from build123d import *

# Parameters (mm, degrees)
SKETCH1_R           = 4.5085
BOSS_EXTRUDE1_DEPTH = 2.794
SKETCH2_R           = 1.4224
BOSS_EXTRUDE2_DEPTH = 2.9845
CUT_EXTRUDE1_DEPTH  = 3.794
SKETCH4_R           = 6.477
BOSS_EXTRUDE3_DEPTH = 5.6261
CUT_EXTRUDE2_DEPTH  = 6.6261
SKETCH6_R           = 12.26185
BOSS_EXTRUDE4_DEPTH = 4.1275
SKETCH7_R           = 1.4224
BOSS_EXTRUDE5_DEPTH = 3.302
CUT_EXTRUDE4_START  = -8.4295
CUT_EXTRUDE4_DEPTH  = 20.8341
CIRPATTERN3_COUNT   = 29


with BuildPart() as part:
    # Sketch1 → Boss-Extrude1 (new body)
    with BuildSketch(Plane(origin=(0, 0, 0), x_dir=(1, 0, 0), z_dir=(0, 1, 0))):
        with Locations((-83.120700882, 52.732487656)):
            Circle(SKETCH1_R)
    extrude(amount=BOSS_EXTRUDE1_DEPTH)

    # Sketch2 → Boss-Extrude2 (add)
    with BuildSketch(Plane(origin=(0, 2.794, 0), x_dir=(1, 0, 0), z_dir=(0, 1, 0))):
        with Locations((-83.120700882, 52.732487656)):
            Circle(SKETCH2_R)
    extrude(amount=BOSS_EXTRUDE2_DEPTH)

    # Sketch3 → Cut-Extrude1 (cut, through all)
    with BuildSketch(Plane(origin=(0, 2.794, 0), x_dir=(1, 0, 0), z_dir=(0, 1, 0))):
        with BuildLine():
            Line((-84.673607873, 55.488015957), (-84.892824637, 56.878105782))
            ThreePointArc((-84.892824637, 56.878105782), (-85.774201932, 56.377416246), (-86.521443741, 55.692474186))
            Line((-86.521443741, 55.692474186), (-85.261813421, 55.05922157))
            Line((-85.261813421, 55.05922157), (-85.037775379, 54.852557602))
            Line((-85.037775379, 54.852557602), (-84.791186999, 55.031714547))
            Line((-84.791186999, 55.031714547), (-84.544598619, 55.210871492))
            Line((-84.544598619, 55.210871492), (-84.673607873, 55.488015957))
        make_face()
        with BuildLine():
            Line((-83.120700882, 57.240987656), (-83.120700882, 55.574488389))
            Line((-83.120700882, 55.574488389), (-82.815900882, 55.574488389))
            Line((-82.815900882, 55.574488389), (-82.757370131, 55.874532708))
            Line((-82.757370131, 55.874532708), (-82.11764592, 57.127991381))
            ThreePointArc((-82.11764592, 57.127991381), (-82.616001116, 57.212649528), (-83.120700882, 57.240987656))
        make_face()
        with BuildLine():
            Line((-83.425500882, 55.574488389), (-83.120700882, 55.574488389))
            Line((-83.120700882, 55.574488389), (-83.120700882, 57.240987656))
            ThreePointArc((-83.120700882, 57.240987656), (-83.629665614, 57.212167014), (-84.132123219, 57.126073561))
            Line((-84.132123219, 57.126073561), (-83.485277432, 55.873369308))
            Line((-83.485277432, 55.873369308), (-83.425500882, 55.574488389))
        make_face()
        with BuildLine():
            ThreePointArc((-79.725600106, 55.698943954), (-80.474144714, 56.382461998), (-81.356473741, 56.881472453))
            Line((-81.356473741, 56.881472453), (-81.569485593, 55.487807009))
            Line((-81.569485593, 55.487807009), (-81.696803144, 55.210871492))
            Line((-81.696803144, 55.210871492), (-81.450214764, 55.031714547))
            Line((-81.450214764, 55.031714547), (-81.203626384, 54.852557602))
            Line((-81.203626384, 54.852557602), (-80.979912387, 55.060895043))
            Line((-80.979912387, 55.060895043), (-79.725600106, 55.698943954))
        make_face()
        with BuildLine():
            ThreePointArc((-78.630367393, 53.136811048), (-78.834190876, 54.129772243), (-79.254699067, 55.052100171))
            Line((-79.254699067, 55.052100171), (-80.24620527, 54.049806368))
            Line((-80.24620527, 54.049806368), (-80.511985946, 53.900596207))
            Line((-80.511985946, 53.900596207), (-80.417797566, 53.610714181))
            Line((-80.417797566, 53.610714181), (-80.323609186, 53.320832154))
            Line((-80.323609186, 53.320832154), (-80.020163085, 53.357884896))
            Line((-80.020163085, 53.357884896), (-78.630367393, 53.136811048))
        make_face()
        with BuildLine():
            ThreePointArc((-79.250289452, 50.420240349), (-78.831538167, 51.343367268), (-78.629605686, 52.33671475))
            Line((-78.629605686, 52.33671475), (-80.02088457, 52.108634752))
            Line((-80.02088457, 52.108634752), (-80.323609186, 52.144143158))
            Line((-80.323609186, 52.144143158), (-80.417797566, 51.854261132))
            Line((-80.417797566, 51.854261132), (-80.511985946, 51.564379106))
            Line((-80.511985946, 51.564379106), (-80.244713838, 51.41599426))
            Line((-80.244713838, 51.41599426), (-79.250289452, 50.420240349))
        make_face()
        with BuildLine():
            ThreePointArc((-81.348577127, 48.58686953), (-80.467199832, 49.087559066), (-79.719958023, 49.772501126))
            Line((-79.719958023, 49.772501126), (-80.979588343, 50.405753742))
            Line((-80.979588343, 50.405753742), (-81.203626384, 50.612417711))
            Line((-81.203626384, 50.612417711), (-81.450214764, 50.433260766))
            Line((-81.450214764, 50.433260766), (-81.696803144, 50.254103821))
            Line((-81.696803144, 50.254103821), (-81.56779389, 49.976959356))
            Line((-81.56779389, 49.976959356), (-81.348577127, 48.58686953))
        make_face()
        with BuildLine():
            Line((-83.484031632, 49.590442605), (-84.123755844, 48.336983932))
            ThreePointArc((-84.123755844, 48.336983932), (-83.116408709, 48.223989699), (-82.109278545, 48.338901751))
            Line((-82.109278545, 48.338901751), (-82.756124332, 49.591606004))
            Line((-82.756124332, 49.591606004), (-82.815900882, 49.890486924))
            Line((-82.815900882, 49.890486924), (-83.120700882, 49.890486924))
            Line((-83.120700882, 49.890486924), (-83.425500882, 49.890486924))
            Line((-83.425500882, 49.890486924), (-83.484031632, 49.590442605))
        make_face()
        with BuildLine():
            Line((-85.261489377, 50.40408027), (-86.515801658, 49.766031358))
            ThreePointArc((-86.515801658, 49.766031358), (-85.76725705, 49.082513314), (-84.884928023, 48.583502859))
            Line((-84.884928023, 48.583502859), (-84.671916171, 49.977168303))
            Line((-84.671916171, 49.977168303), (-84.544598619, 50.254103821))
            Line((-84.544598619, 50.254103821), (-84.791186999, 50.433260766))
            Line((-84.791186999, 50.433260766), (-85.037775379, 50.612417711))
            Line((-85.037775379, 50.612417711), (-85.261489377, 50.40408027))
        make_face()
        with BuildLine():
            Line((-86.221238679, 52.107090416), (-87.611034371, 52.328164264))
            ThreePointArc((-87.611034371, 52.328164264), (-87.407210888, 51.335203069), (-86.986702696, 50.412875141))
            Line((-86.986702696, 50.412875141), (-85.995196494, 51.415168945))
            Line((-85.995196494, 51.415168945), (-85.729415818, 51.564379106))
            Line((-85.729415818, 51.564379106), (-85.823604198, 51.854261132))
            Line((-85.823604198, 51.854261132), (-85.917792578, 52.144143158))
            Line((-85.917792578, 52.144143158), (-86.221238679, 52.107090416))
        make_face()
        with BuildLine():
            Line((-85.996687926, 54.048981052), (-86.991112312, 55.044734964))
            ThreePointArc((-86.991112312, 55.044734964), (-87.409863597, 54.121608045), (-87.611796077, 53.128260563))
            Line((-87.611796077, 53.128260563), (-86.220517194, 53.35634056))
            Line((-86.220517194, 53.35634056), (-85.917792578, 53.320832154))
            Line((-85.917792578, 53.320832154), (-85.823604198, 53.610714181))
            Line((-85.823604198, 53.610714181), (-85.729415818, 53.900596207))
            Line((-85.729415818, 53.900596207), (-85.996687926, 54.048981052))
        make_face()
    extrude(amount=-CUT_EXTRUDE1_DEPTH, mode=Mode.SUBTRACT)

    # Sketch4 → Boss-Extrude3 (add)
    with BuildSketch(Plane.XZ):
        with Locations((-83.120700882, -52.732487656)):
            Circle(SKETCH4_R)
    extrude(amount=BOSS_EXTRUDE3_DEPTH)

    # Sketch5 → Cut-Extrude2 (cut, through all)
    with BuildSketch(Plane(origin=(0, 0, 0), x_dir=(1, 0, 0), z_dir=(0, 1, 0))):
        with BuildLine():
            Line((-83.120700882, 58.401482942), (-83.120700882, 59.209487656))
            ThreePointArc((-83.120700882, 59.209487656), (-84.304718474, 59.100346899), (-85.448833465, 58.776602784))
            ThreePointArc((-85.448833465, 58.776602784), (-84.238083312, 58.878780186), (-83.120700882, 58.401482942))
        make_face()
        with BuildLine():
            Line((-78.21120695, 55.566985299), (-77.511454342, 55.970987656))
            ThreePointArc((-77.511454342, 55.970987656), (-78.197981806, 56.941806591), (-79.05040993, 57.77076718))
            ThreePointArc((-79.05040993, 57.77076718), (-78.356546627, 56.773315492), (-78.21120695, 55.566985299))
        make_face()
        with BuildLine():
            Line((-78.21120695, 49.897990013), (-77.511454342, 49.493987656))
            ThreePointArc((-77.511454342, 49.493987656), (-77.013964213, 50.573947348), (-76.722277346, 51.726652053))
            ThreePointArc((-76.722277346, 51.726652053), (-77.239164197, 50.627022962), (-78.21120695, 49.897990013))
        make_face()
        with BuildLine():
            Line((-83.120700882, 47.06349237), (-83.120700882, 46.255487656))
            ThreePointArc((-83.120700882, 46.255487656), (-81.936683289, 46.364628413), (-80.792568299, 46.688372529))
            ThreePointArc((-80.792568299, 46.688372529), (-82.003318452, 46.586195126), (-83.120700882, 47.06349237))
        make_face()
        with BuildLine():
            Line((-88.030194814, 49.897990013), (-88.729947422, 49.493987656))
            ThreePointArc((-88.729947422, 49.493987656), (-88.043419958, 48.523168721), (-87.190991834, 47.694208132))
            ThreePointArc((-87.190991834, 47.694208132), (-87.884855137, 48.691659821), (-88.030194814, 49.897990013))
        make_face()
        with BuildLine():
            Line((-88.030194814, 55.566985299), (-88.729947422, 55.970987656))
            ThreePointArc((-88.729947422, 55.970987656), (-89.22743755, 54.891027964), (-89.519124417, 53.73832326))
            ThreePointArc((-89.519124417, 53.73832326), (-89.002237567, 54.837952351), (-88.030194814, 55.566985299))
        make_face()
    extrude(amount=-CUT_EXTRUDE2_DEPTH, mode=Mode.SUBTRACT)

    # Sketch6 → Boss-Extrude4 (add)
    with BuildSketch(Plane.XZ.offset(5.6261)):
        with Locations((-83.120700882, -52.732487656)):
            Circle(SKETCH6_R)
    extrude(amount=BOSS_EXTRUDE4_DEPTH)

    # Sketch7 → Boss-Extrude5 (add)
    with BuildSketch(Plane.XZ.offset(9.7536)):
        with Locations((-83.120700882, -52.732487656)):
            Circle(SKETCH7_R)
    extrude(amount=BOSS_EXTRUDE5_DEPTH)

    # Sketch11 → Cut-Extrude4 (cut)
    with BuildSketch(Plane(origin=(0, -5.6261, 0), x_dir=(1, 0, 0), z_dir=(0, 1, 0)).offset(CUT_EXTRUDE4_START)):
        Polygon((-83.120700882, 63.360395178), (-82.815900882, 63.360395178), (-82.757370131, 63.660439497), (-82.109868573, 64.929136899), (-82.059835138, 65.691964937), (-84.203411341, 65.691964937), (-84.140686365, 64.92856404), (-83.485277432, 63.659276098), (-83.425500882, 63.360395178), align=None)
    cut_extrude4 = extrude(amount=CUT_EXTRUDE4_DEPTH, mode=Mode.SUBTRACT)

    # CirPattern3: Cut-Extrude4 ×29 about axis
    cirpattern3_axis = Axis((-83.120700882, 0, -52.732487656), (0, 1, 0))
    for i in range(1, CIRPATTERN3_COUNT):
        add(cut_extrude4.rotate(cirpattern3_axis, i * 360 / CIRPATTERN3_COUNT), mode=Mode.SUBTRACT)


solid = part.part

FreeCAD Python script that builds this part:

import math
import FreeCAD as App
import Part
import Sketcher
Q = App.Units.Quantity

doc = App.newDocument("Part")
body = doc.addObject("PartDesign::Body", "Body")

# Sketch on XZ plane
sketch1 = doc.addObject("Sketcher::SketchObject", "Sketch")
body.addObject(sketch1)
sketch1.AttachmentSupport = (doc.XZ_Plane, [""])
sketch1.MapMode = "FlatFace"
sketch1.addGeometry(Part.Circle(App.Vector(-83.1, -52.7, 0), App.Vector(0, 0, 1), 4.5), False)
sketch1.addConstraint([
    Sketcher.Constraint("Diameter", 0, Q("0.355 in")),
    Sketcher.Constraint("DistanceX", 0, 3, -1, 1, Q("83.120701 mm")),
    Sketcher.Constraint("DistanceY", 0, 3, -1, 1, Q("52.732488 mm")),
])
pad1 = doc.addObject("PartDesign::Pad", "Pad")
body.addObject(pad1)
pad1.Profile = sketch1
pad1.Length = Q("0.11 in")
pad1.Reversed = True

# Sketch on XZ plane
sketch2 = doc.addObject("Sketcher::SketchObject", "Sketch001")
body.addObject(sketch2)
sketch2.AttachmentSupport = (doc.XZ_Plane, [""])
sketch2.MapMode = "FlatFace"
sketch2.AttachmentOffset = App.Placement(App.Vector(0, 0, -0.11 * 25.4), App.Rotation())
sketch2.addGeometry(Part.Circle(App.Vector(-83.1, -52.7, 0), App.Vector(0, 0, 1), 1.4), False)
sketch2.addConstraint([
    Sketcher.Constraint("Diameter", 0, Q("0.112 in")),
    Sketcher.Constraint("DistanceX", 0, 3, -1, 1, Q("83.120701 mm")),
    Sketcher.Constraint("DistanceY", 0, 3, -1, 1, Q("52.732488 mm")),
])
pad2 = doc.addObject("PartDesign::Pad", "Pad001")
body.addObject(pad2)
pad2.Profile = sketch2
pad2.Length = Q("0.1175 in")
pad2.Reversed = True

# Sketch on XZ plane
sketch3 = doc.addObject("Sketcher::SketchObject", "Sketch002")
body.addObject(sketch3)
sketch3.AttachmentSupport = (doc.XZ_Plane, [""])
sketch3.MapMode = "FlatFace"
sketch3.AttachmentOffset = App.Placement(App.Vector(0, 0, -0.11 * 25.4), App.Rotation())
sketch3.addGeometry([
    Part.LineSegment(App.Vector(-84.67, -55.49, 0), App.Vector(-84.89, -56.88, 0)),  # 0
    Part.ArcOfCircle(Part.Circle(App.Vector(-83.12, -52.73, 0), App.Vector(0, 0, 1), 4.51), math.radians(-139), math.radians(-113)),  # 1
    Part.LineSegment(App.Vector(-86.52, -55.69, 0), App.Vector(-85.26, -55.06, 0)),  # 2
    Part.LineSegment(App.Vector(-85.26, -55.06, 0), App.Vector(-85.04, -54.85, 0)),  # 3
    Part.LineSegment(App.Vector(-85.04, -54.85, 0), App.Vector(-84.54, -55.21, 0)),  # 4
    Part.LineSegment(App.Vector(-84.54, -55.21, 0), App.Vector(-84.67, -55.49, 0)),  # 5
    Part.LineSegment(App.Vector(-82.82, -55.57, 0), App.Vector(-82.76, -55.87, 0)),  # 6
    Part.LineSegment(App.Vector(-82.76, -55.87, 0), App.Vector(-82.12, -57.13, 0)),  # 7
    Part.ArcOfCircle(Part.Circle(App.Vector(-83.12, -52.73, 0), App.Vector(0, 0, 1), 4.51), math.radians(-90), math.radians(-77.15)),  # 8
    Part.ArcOfCircle(Part.Circle(App.Vector(-83.12, -52.73, 0), App.Vector(0, 0, 1), 4.51), math.radians(-102.96), math.radians(-90)),  # 9
    Part.LineSegment(App.Vector(-84.13, -57.13, 0), App.Vector(-83.49, -55.87, 0)),  # 10
    Part.LineSegment(App.Vector(-83.49, -55.87, 0), App.Vector(-83.43, -55.57, 0)),  # 11
    Part.LineSegment(App.Vector(-83.43, -55.57, 0), App.Vector(-82.82, -55.57, 0)),  # 12
    Part.ArcOfCircle(Part.Circle(App.Vector(-83.12, -52.73, 0), App.Vector(0, 0, 1), 4.51), math.radians(-67), math.radians(-41)),  # 13
    Part.LineSegment(App.Vector(-81.36, -56.88, 0), App.Vector(-81.57, -55.49, 0)),  # 14
    Part.LineSegment(App.Vector(-81.57, -55.49, 0), App.Vector(-81.7, -55.21, 0)),  # 15
    Part.LineSegment(App.Vector(-81.7, -55.21, 0), App.Vector(-81.2, -54.85, 0)),  # 16
    Part.LineSegment(App.Vector(-81.2, -54.85, 0), App.Vector(-80.98, -55.06, 0)),  # 17
    Part.LineSegment(App.Vector(-80.98, -55.06, 0), App.Vector(-79.73, -55.7, 0)),  # 18
    Part.ArcOfCircle(Part.Circle(App.Vector(-83.12, -52.73, 0), App.Vector(0, 0, 1), 4.51), math.radians(-31), math.radians(-5)),  # 19
    Part.LineSegment(App.Vector(-79.25, -55.05, 0), App.Vector(-80.25, -54.05, 0)),  # 20
    Part.LineSegment(App.Vector(-80.25, -54.05, 0), App.Vector(-80.51, -53.9, 0)),  # 21
    Part.LineSegment(App.Vector(-80.51, -53.9, 0), App.Vector(-80.42, -53.61, 0)),  # 22
    Part.LineSegment(App.Vector(-80.42, -53.61, 0), App.Vector(-80.32, -53.32, 0)),  # 23
    Part.LineSegment(App.Vector(-80.32, -53.32, 0), App.Vector(-80.02, -53.36, 0)),  # 24
    Part.LineSegment(App.Vector(-80.02, -53.36, 0), App.Vector(-78.63, -53.14, 0)),  # 25
    Part.ArcOfCircle(Part.Circle(App.Vector(-83.12, -52.73, 0), App.Vector(0, 0, 1), 4.51), math.radians(5), math.radians(31)),  # 26
    Part.LineSegment(App.Vector(-78.63, -52.34, 0), App.Vector(-80.02, -52.11, 0)),  # 27
    Part.LineSegment(App.Vector(-80.02, -52.11, 0), App.Vector(-80.32, -52.14, 0)),  # 28
    Part.LineSegment(App.Vector(-80.32, -52.14, 0), App.Vector(-80.51, -51.56, 0)),  # 29
    Part.LineSegment(App.Vector(-80.51, -51.56, 0), App.Vector(-80.24, -51.42, 0)),  # 30
    Part.LineSegment(App.Vector(-80.24, -51.42, 0), App.Vector(-79.25, -50.42, 0)),  # 31
    Part.ArcOfCircle(Part.Circle(App.Vector(-83.12, -52.73, 0), App.Vector(0, 0, 1), 4.51), math.radians(41), math.radians(67)),  # 32
    Part.LineSegment(App.Vector(-79.72, -49.77, 0), App.Vector(-80.98, -50.41, 0)),  # 33
    Part.LineSegment(App.Vector(-80.98, -50.41, 0), App.Vector(-81.2, -50.61, 0)),  # 34
    Part.LineSegment(App.Vector(-81.2, -50.61, 0), App.Vector(-81.7, -50.25, 0)),  # 35
    Part.LineSegment(App.Vector(-81.7, -50.25, 0), App.Vector(-81.57, -49.98, 0)),  # 36
    Part.LineSegment(App.Vector(-81.57, -49.98, 0), App.Vector(-81.35, -48.59, 0)),  # 37
    Part.LineSegment(App.Vector(-83.48, -49.59, 0), App.Vector(-84.12, -48.34, 0)),  # 38
    Part.ArcOfCircle(Part.Circle(App.Vector(-83.12, -52.73, 0), App.Vector(0, 0, 1), 4.51), math.radians(77), math.radians(103)),  # 39
    Part.LineSegment(App.Vector(-82.11, -48.34, 0), App.Vector(-82.76, -49.59, 0)),  # 40
    Part.LineSegment(App.Vector(-82.76, -49.59, 0), App.Vector(-82.82, -49.89, 0)),  # 41
    Part.LineSegment(App.Vector(-82.82, -49.89, 0), App.Vector(-83.43, -49.89, 0)),  # 42
    Part.LineSegment(App.Vector(-83.43, -49.89, 0), App.Vector(-83.48, -49.59, 0)),  # 43
    Part.LineSegment(App.Vector(-85.26, -50.4, 0), App.Vector(-86.52, -49.77, 0)),  # 44
    Part.ArcOfCircle(Part.Circle(App.Vector(-83.12, -52.73, 0), App.Vector(0, 0, 1), 4.51), math.radians(113), math.radians(139)),  # 45
    Part.LineSegment(App.Vector(-84.88, -48.58, 0), App.Vector(-84.67, -49.98, 0)),  # 46
    Part.LineSegment(App.Vector(-84.67, -49.98, 0), App.Vector(-84.54, -50.25, 0)),  # 47
    Part.LineSegment(App.Vector(-84.54, -50.25, 0), App.Vector(-85.04, -50.61, 0)),  # 48
    Part.LineSegment(App.Vector(-85.04, -50.61, 0), App.Vector(-85.26, -50.4, 0)),  # 49
    Part.LineSegment(App.Vector(-86.22, -52.11, 0), App.Vector(-87.61, -52.33, 0)),  # 50
    Part.ArcOfCircle(Part.Circle(App.Vector(-83.12, -52.73, 0), App.Vector(0, 0, 1), 4.51), math.radians(149), math.radians(175)),  # 51
    Part.LineSegment(App.Vector(-86.99, -50.41, 0), App.Vector(-86, -51.42, 0)),  # 52
    Part.LineSegment(App.Vector(-86, -51.42, 0), App.Vector(-85.73, -51.56, 0)),  # 53
    Part.LineSegment(App.Vector(-85.73, -51.56, 0), App.Vector(-85.92, -52.14, 0)),  # 54
    Part.LineSegment(App.Vector(-85.92, -52.14, 0), App.Vector(-86.22, -52.11, 0)),  # 55
    Part.LineSegment(App.Vector(-86, -54.05, 0), App.Vector(-86.99, -55.04, 0)),  # 56
    Part.ArcOfCircle(Part.Circle(App.Vector(-83.12, -52.73, 0), App.Vector(0, 0, 1), 4.51), math.radians(-175), math.radians(-149)),  # 57
    Part.LineSegment(App.Vector(-87.61, -53.13, 0), App.Vector(-86.22, -53.36, 0)),  # 58
    Part.LineSegment(App.Vector(-86.22, -53.36, 0), App.Vector(-85.92, -53.32, 0)),  # 59
    Part.LineSegment(App.Vector(-85.92, -53.32, 0), App.Vector(-85.82, -53.61, 0)),  # 60
    Part.LineSegment(App.Vector(-85.82, -53.61, 0), App.Vector(-85.73, -53.9, 0)),  # 61
    Part.LineSegment(App.Vector(-85.73, -53.9, 0), App.Vector(-86, -54.05, 0)),  # 62
], False)
sketch3.addConstraint([
    Sketcher.Constraint("Coincident", 0, 2, 1, 2),
    Sketcher.Constraint("Coincident", 1, 1, 2, 1),
    Sketcher.Constraint("Coincident", 2, 2, 3, 1),
    Sketcher.Constraint("Coincident", 3, 2, 4, 1),
    Sketcher.Constraint("Coincident", 4, 2, 5, 1),
    Sketcher.Constraint("Coincident", 5, 2, 0, 1),
    Sketcher.Constraint("Coincident", 6, 2, 7, 1),
    Sketcher.Constraint("Coincident", 7, 2, 8, 2),
    Sketcher.Constraint("Tangent", 8, 1, 9, 2),
    Sketcher.Constraint("Coincident", 9, 1, 10, 1),
    Sketcher.Constraint("Coincident", 10, 2, 11, 1),
    Sketcher.Constraint("Coincident", 11, 2, 12, 1),
    Sketcher.Constraint("Coincident", 12, 2, 6, 1),
    Sketcher.Constraint("Coincident", 13, 1, 14, 1),
    Sketcher.Constraint("Coincident", 14, 2, 15, 1),
    Sketcher.Constraint("Coincident", 15, 2, 16, 1),
    Sketcher.Constraint("Coincident", 16, 2, 17, 1),
    Sketcher.Constraint("Coincident", 17, 2, 18, 1),
    Sketcher.Constraint("Coincident", 18, 2, 13, 2),
    Sketcher.Constraint("Coincident", 19, 1, 20, 1),
    Sketcher.Constraint("Coincident", 20, 2, 21, 1),
    Sketcher.Constraint("Coincident", 21, 2, 22, 1),
    Sketcher.Constraint("Coincident", 22, 2, 23, 1),
    Sketcher.Constraint("Coincident", 23, 2, 24, 1),
    Sketcher.Constraint("Coincident", 24, 2, 25, 1),
    Sketcher.Constraint("Coincident", 25, 2, 19, 2),
    Sketcher.Constraint("Coincident", 26, 1, 27, 1),
    Sketcher.Constraint("Coincident", 27, 2, 28, 1),
    Sketcher.Constraint("Coincident", 28, 2, 29, 1),
    Sketcher.Constraint("Coincident", 29, 2, 30, 1),
    Sketcher.Constraint("Coincident", 30, 2, 31, 1),
    Sketcher.Constraint("Coincident", 31, 2, 26, 2),
    Sketcher.Constraint("Coincident", 32, 1, 33, 1),
    Sketcher.Constraint("Coincident", 33, 2, 34, 1),
    Sketcher.Constraint("Coincident", 34, 2, 35, 1),
    Sketcher.Constraint("Coincident", 35, 2, 36, 1),
    Sketcher.Constraint("Coincident", 36, 2, 37, 1),
    Sketcher.Constraint("Coincident", 37, 2, 32, 2),
    Sketcher.Constraint("Coincident", 38, 2, 39, 2),
    Sketcher.Constraint("Coincident", 39, 1, 40, 1),
    Sketcher.Constraint("Coincident", 40, 2, 41, 1),
    Sketcher.Constraint("Coincident", 41, 2, 42, 1),
    Sketcher.Constraint("Coincident", 42, 2, 43, 1),
    Sketcher.Constraint("Coincident", 43, 2, 38, 1),
    Sketcher.Constraint("Coincident", 44, 2, 45, 2),
    Sketcher.Constraint("Coincident", 45, 1, 46, 1),
    Sketcher.Constraint("Coincident", 46, 2, 47, 1),
    Sketcher.Constraint("Coincident", 47, 2, 48, 1),
    Sketcher.Constraint("Coincident", 48, 2, 49, 1),
    Sketcher.Constraint("Coincident", 49, 2, 44, 1),
    Sketcher.Constraint("Coincident", 50, 2, 51, 2),
    Sketcher.Constraint("Coincident", 51, 1, 52, 1),
    Sketcher.Constraint("Coincident", 52, 2, 53, 1),
    Sketcher.Constraint("Coincident", 53, 2, 54, 1),
    Sketcher.Constraint("Coincident", 54, 2, 55, 1),
    Sketcher.Constraint("Coincident", 55, 2, 50, 1),
    Sketcher.Constraint("Coincident", 56, 2, 57, 2),
    Sketcher.Constraint("Coincident", 57, 1, 58, 1),
    Sketcher.Constraint("Coincident", 58, 2, 59, 1),
    Sketcher.Constraint("Coincident", 59, 2, 60, 1),
    Sketcher.Constraint("Coincident", 60, 2, 61, 1),
    Sketcher.Constraint("Coincident", 61, 2, 62, 1),
    Sketcher.Constraint("Coincident", 62, 2, 56, 1),
    Sketcher.Constraint("Horizontal", 12),
    Sketcher.Constraint("Horizontal", 42),
    Sketcher.Constraint("Coincident", 8, 3, 1, 3),
    Sketcher.Constraint("Coincident", 13, 3, 1, 3),
    Sketcher.Constraint("Coincident", 19, 3, 1, 3),
    Sketcher.Constraint("Coincident", 26, 3, 1, 3),
    Sketcher.Constraint("Coincident", 32, 3, 1, 3),
    Sketcher.Constraint("Coincident", 39, 3, 1, 3),
    Sketcher.Constraint("Coincident", 45, 3, 1, 3),
    Sketcher.Constraint("Coincident", 51, 3, 1, 3),
    Sketcher.Constraint("Coincident", 57, 3, 1, 3),
    Sketcher.Constraint("Equal", 1, 8),
    Sketcher.Constraint("Equal", 8, 9),
    Sketcher.Constraint("Equal", 9, 13),
    Sketcher.Constraint("Equal", 13, 19),
    Sketcher.Constraint("Equal", 19, 26),
    Sketcher.Constraint("Equal", 26, 32),
    Sketcher.Constraint("Equal", 32, 39),
    Sketcher.Constraint("Equal", 39, 45),
    Sketcher.Constraint("Equal", 45, 51),
    Sketcher.Constraint("Equal", 51, 57),
    Sketcher.Constraint("Parallel", 22, 23),
    Sketcher.Constraint("Parallel", 2, 33),
    Sketcher.Constraint("Parallel", 3, 34),
    Sketcher.Constraint("Parallel", 4, 35),
    Sketcher.Constraint("Parallel", 5, 36),
    Sketcher.Constraint("Parallel", 0, 37),
    Sketcher.Constraint("Parallel", 7, 38),
    Sketcher.Constraint("Parallel", 10, 40),
    Sketcher.Constraint("Parallel", 11, 41),
    Sketcher.Constraint("Parallel", 6, 43),
    Sketcher.Constraint("Parallel", 18, 44),
    Sketcher.Constraint("Parallel", 14, 46),
    Sketcher.Constraint("Parallel", 15, 47),
    Sketcher.Constraint("Parallel", 16, 48),
    Sketcher.Constraint("Parallel", 17, 49),
    Sketcher.Constraint("Parallel", 25, 50),
    Sketcher.Constraint("Parallel", 20, 52),
    Sketcher.Constraint("Parallel", 21, 53),
    Sketcher.Constraint("Parallel", 23, 54),
    Sketcher.Constraint("Parallel", 24, 55),
    Sketcher.Constraint("Parallel", 31, 56),
    Sketcher.Constraint("Parallel", 27, 58),
    Sketcher.Constraint("Parallel", 28, 59),
    Sketcher.Constraint("Parallel", 29, 60),
    Sketcher.Constraint("Parallel", 60, 61),
    Sketcher.Constraint("Parallel", 30, 62),
    Sketcher.Constraint("Horizontal", 4, 2, 15, 2),
    Sketcher.Constraint("Horizontal", 3, 2, 16, 2),
    Sketcher.Constraint("Horizontal", 35, 2, 47, 2),
    Sketcher.Constraint("Horizontal", 34, 2, 48, 2),
    Sketcher.Constraint("Horizontal", 29, 2, 53, 2),
    Sketcher.Constraint("Horizontal", 28, 2, 54, 2),
    Sketcher.Constraint("Horizontal", 23, 2, 59, 2),
    Sketcher.Constraint("Horizontal", 22, 2, 60, 2),
    Sketcher.Constraint("Horizontal", 21, 2, 61, 2),
    Sketcher.Constraint("Vertical", 57, 3, 8, 1),
    Sketcher.Constraint("Vertical", 23, 2, 28, 2),
    Sketcher.Constraint("Vertical", 21, 2, 29, 2),
    Sketcher.Constraint("Vertical", 16, 2, 34, 2),
    Sketcher.Constraint("Vertical", 15, 2, 35, 2),
    Sketcher.Constraint("Vertical", 12, 2, 41, 2),
    Sketcher.Constraint("Vertical", 11, 2, 42, 2),
    Sketcher.Constraint("Vertical", 4, 2, 47, 2),
    Sketcher.Constraint("Vertical", 3, 2, 48, 2),
    Sketcher.Constraint("Vertical", 54, 2, 59, 2),
    Sketcher.Constraint("Vertical", 53, 2, 61, 2),
    Sketcher.Constraint("Equal", 5, 6),
    Sketcher.Constraint("Equal", 0, 7),
    Sketcher.Constraint("Equal", 2, 10),
    Sketcher.Constraint("Equal", 3, 11),
    Sketcher.Constraint("Equal", 10, 14),
    Sketcher.Constraint("Equal", 11, 15),
    Sketcher.Constraint("Equal", 6, 17),
    Sketcher.Constraint("Equal", 7, 18),
    Sketcher.Constraint("Equal", 14, 20),
    Sketcher.Constraint("Equal", 15, 21),
    Sketcher.Constraint("Equal", 21, 22),
    Sketcher.Constraint("Equal", 22, 23),
    Sketcher.Constraint("Equal", 17, 24),
    Sketcher.Constraint("Equal", 18, 25),
    Sketcher.Constraint("Equal", 20, 27),
    Sketcher.Constraint("Equal", 23, 28),
    Sketcher.Constraint("Equal", 16, 29),
    Sketcher.Constraint("Equal", 24, 30),
    Sketcher.Constraint("Equal", 25, 31),
    Sketcher.Constraint("Equal", 27, 33),
    Sketcher.Constraint("Equal", 28, 34),
    Sketcher.Constraint("Equal", 30, 36),
    Sketcher.Constraint("Equal", 31, 37),
    Sketcher.Constraint("Equal", 37, 38),
    Sketcher.Constraint("Equal", 33, 40),
    Sketcher.Constraint("Equal", 34, 41),
    Sketcher.Constraint("Equal", 36, 43),
    Sketcher.Constraint("Equal", 38, 44),
    Sketcher.Constraint("Equal", 40, 46),
    Sketcher.Constraint("Equal", 44, 50),
    Sketcher.Constraint("Equal", 46, 52),
    Sketcher.Constraint("Equal", 47, 53),
    Sketcher.Constraint("Equal", 49, 55),
    Sketcher.Constraint("Equal", 50, 56),
    Sketcher.Constraint("Equal", 52, 58),
    Sketcher.Constraint("Angle", 4, Q("-36 deg")),
    Sketcher.Constraint("Angle", 22, Q("72 deg")),
    Sketcher.Constraint("Radius", 1, Q("0.1775 in")),
    Sketcher.Constraint("DistanceX", 12, 1, 12, 2, Q("0.024 in")),
    Sketcher.Constraint("Angle", 2, Q("26.69 deg")),
    Sketcher.Constraint("Angle", 3, Q("42.69 deg")),
    Sketcher.Constraint("Angle", 10, Q("62.69 deg")),
    Sketcher.Constraint("Angle", 11, Q("78.69 deg")),
    Sketcher.Constraint("Angle", 14, Q("98.69 deg")),
    Sketcher.Constraint("Angle", 15, Q("114.69 deg")),
    Sketcher.Constraint("Angle", 20, Q("134.69 deg")),
    Sketcher.Constraint("Angle", 21, Q("150.69 deg")),
    Sketcher.Constraint("Angle", 27, Q("170.69 deg")),
    Sketcher.Constraint("Angle", 28, Q("-173.31 deg")),
    Sketcher.Constraint("Distance", 3, Q("0.012 in")),
    Sketcher.Constraint("DistanceX", 24, 2, -1, 1, Q("3.1504001 in")),
    Sketcher.Constraint("DistanceX", 37, 2, -1, 1, Q("3.2026999 in")),
    Sketcher.Constraint("Distance", 5, Q("0.3057 mm")),
    Sketcher.Constraint("DistanceX", 1, 3, -1, 1, Q("83.120701 mm")),
    Sketcher.Constraint("DistanceX", 4, 2, -1, 1, Q("84.544599 mm")),
    Sketcher.Constraint("DistanceX", 18, 2, -1, 1, Q("79.7256 mm")),
    Sketcher.Constraint("DistanceY", 19, 1, -1, 1, Q("55.0521 mm")),
    Sketcher.Constraint("Distance", 0, Q("1.407269 mm")),
    Sketcher.Constraint("DistanceX", 6, 2, -1, 1, Q("82.75737 mm")),
    Sketcher.Constraint("DistanceX", 31, 2, -1, 1, Q("79.250289 mm")),
])
pocket1 = doc.addObject("PartDesign::Pocket", "Pocket")
body.addObject(pocket1)
pocket1.Profile = sketch3
pocket1.Type = "ThroughAll"
pocket1.Reversed = True

# Sketch on XZ plane
sketch4 = doc.addObject("Sketcher::SketchObject", "Sketch003")
body.addObject(sketch4)
sketch4.AttachmentSupport = (doc.XZ_Plane, [""])
sketch4.MapMode = "FlatFace"
sketch4.addGeometry(Part.Circle(App.Vector(-83, -53, 0), App.Vector(0, 0, 1), 6), False)
sketch4.addConstraint([
    Sketcher.Constraint("Diameter", 0, Q("0.51 in")),
    Sketcher.Constraint("DistanceX", 0, 3, -1, 1, Q("83.120701 mm")),
    Sketcher.Constraint("DistanceY", 0, 3, -1, 1, Q("52.732488 mm")),
])
pad3 = doc.addObject("PartDesign::Pad", "Pad002")
body.addObject(pad3)
pad3.Profile = sketch4
pad3.Length = Q("0.2215 in")

# Sketch on XZ plane
sketch5 = doc.addObject("Sketcher::SketchObject", "Sketch004")
body.addObject(sketch5)
sketch5.AttachmentSupport = (doc.XZ_Plane, [""])
sketch5.MapMode = "FlatFace"
sketch5.addGeometry([
    Part.LineSegment(App.Vector(-83.120701, -58.401483, 0), App.Vector(-83.120701, -59.209488, 0)),  # 0
    Part.ArcOfCircle(Part.Circle(App.Vector(-83.120701, -52.732488, 0), App.Vector(0, 0, 1), 6.477), math.radians(-111.066185), math.radians(-90)),  # 1
    Part.ArcOfCircle(Part.Circle(App.Vector(-84.638201, -56.3955, 0), App.Vector(0, 0, 1), 2.515308), math.radians(-108.800831), math.radians(-52.892964)),  # 2
    Part.LineSegment(App.Vector(-78.211207, -55.566985, 0), App.Vector(-77.511454, -55.970988, 0)),  # 3
    Part.ArcOfCircle(Part.Circle(App.Vector(-83.120701, -52.732488, 0), App.Vector(0, 0, 1), 6.477), math.radians(-51.066185), math.radians(-30)),  # 4
    Part.ArcOfCircle(Part.Circle(App.Vector(-80.70719, -55.878188, 0), App.Vector(0, 0, 1), 2.515308), math.radians(-48.800832), math.radians(7.107036)),  # 5
    Part.LineSegment(App.Vector(-78.211207, -49.89799, 0), App.Vector(-77.511454, -49.493988, 0)),  # 6
    Part.ArcOfCircle(Part.Circle(App.Vector(-83.120701, -52.732488, 0), App.Vector(0, 0, 1), 6.477), math.radians(8.933815), math.radians(30)),  # 7
    Part.ArcOfCircle(Part.Circle(App.Vector(-79.189689, -52.215176, 0), App.Vector(0, 0, 1), 2.515308), math.radians(11.199169), math.radians(67.107036)),  # 8
    Part.LineSegment(App.Vector(-83.120701, -47.063492, 0), App.Vector(-83.120701, -46.255488, 0)),  # 9
    Part.ArcOfCircle(Part.Circle(App.Vector(-83.120701, -52.732488, 0), App.Vector(0, 0, 1), 6.477), math.radians(68.933815), math.radians(90)),  # 10
    Part.ArcOfCircle(Part.Circle(App.Vector(-81.6032, -49.069476, 0), App.Vector(0, 0, 1), 2.515308), math.radians(71.199168), math.radians(127.107036)),  # 11
    Part.LineSegment(App.Vector(-88.030195, -49.89799, 0), App.Vector(-88.729947, -49.493988, 0)),  # 12
    Part.ArcOfCircle(Part.Circle(App.Vector(-83.120701, -52.732488, 0), App.Vector(0, 0, 1), 6.477), math.radians(128.933815), math.radians(150)),  # 13
    Part.ArcOfCircle(Part.Circle(App.Vector(-85.534212, -49.586788, 0), App.Vector(0, 0, 1), 2.515308), math.radians(131.199168), math.radians(187.107036)),  # 14
    Part.LineSegment(App.Vector(-88.030195, -55.566985, 0), App.Vector(-88.729947, -55.970988, 0)),  # 15
    Part.ArcOfCircle(Part.Circle(App.Vector(-83.120701, -52.732488, 0), App.Vector(0, 0, 1), 6.477), math.radians(-171.066185), math.radians(-150)),  # 16
    Part.ArcOfCircle(Part.Circle(App.Vector(-87.051713, -53.2498, 0), App.Vector(0, 0, 1), 2.515308), math.radians(-168.800832), math.radians(-112.892964)),  # 17
], False)
sketch5.addConstraint([
    Sketcher.Constraint("Coincident", 0, 2, 1, 2),
    Sketcher.Constraint("Coincident", 1, 1, 2, 1),
    Sketcher.Constraint("Coincident", 2, 2, 0, 1),
    Sketcher.Constraint("Coincident", 3, 2, 4, 2),
    Sketcher.Constraint("Coincident", 4, 1, 5, 1),
    Sketcher.Constraint("Coincident", 5, 2, 3, 1),
    Sketcher.Constraint("Coincident", 6, 2, 7, 2),
    Sketcher.Constraint("Coincident", 7, 1, 8, 1),
    Sketcher.Constraint("Coincident", 8, 2, 6, 1),
    Sketcher.Constraint("Coincident", 9, 2, 10, 2),
    Sketcher.Constraint("Coincident", 10, 1, 11, 1),
    Sketcher.Constraint("Coincident", 11, 2, 9, 1),
    Sketcher.Constraint("Coincident", 12, 2, 13, 2),
    Sketcher.Constraint("Coincident", 13, 1, 14, 1),
    Sketcher.Constraint("Coincident", 14, 2, 12, 1),
    Sketcher.Constraint("Coincident", 15, 2, 16, 2),
    Sketcher.Constraint("Coincident", 16, 1, 17, 1),
    Sketcher.Constraint("Coincident", 17, 2, 15, 1),
    Sketcher.Constraint("Vertical", 0),
    Sketcher.Constraint("Vertical", 9),
    Sketcher.Constraint("Coincident", 4, 3, 1, 3),
    Sketcher.Constraint("Coincident", 7, 3, 1, 3),
    Sketcher.Constraint("Coincident", 10, 3, 1, 3),
    Sketcher.Constraint("Coincident", 13, 3, 1, 3),
    Sketcher.Constraint("Coincident", 16, 3, 1, 3),
    Sketcher.Constraint("Radius", 1, Q("0.255 in")),
    Sketcher.Constraint("Radius", 4, Q("0.255 in")),
    Sketcher.Constraint("Radius", 7, Q("0.255 in")),
    Sketcher.Constraint("Radius", 10, Q("0.255 in")),
    Sketcher.Constraint("Radius", 13, Q("0.255 in")),
    Sketcher.Constraint("Radius", 16, Q("0.255 in")),
    Sketcher.Constraint("Radius", 2, Q("2.515308 mm")),
    Sketcher.Constraint("Radius", 5, Q("2.515308 mm")),
    Sketcher.Constraint("Radius", 8, Q("2.515308 mm")),
    Sketcher.Constraint("Radius", 11, Q("2.515308 mm")),
    Sketcher.Constraint("Radius", 14, Q("2.515308 mm")),
    Sketcher.Constraint("Radius", 17, Q("2.515308 mm")),
    Sketcher.Constraint("DistanceY", 3, 2, 7, 3, Q("0.1275 in")),
    Sketcher.Constraint("DistanceY", 7, 3, 6, 2, Q("0.1275 in")),
    Sketcher.Constraint("DistanceY", 7, 1, 6, 2, Q("0.0879002 in")),
    Sketcher.Constraint("DistanceY", 1, 3, 12, 2, Q("0.1275 in")),
    Sketcher.Constraint("DistanceY", 15, 2, 16, 1, Q("0.0879002 in")),
    Sketcher.Constraint("DistanceY", 16, 1, 12, 2, Q("0.1670998 in")),
    Sketcher.Constraint("DistanceX", 1, 3, -1, 1, Q("83.120701 mm")),
    Sketcher.Constraint("DistanceX", 2, 3, -1, 1, Q("84.638201 mm")),
    Sketcher.Constraint("DistanceY", 2, 3, -1, 1, Q("56.3955 mm")),
    Sketcher.Constraint("DistanceX", 11, 3, -1, 1, Q("81.6032 mm")),
    Sketcher.Constraint("DistanceY", 17, 3, -1, 1, Q("53.2498 mm")),
    Sketcher.Constraint("DistanceX", 0, 2, -1, 1, Q("83.120701 mm")),
    Sketcher.Constraint("DistanceX", 9, 2, -1, 1, Q("83.120701 mm")),
    Sketcher.Constraint("DistanceY", 5, 3, 4, 3, Q("3.1457 mm")),
    Sketcher.Constraint("DistanceX", 5, 3, 8, 3, Q("1.5175 mm")),
    Sketcher.Constraint("DistanceY", 8, 3, 11, 3, Q("3.1457 mm")),
    Sketcher.Constraint("DistanceY", 1, 3, 14, 3, Q("3.1457 mm")),
    Sketcher.Constraint("DistanceX", 17, 3, 14, 3, Q("1.5175 mm")),
    Sketcher.Constraint("DistanceY", 0, 2, 0, 1, Q("0.808005 mm")),
    Sketcher.Constraint("DistanceY", 9, 1, 9, 2, Q("0.808005 mm")),
    Sketcher.Constraint("DistanceY", 8, 2, -1, 1, Q("49.89799 mm")),
    Sketcher.Constraint("DistanceY", 14, 2, -1, 1, Q("49.89799 mm")),
    Sketcher.Constraint("DistanceY", 4, 1, 5, 2, Q("2.203782 mm")),
    Sketcher.Constraint("DistanceX", 16, 1, 17, 2, Q("1.48893 mm")),
])
pocket2 = doc.addObject("PartDesign::Pocket", "Pocket001")
body.addObject(pocket2)
pocket2.Profile = sketch5
pocket2.Type = "ThroughAll"
pocket2.Reversed = True

# Sketch on XZ plane
sketch6 = doc.addObject("Sketcher::SketchObject", "Sketch005")
body.addObject(sketch6)
sketch6.AttachmentSupport = (doc.XZ_Plane, [""])
sketch6.MapMode = "FlatFace"
sketch6.AttachmentOffset = App.Placement(App.Vector(0, 0, 0.2215 * 25.4), App.Rotation())
sketch6.addGeometry(Part.Circle(App.Vector(-83, -53, 0), App.Vector(0, 0, 1), 12), False)
sketch6.addConstraint([
    Sketcher.Constraint("Diameter", 0, Q("0.9655 in")),
    Sketcher.Constraint("DistanceX", 0, 3, -1, 1, Q("83.120701 mm")),
    Sketcher.Constraint("DistanceY", 0, 3, -1, 1, Q("52.732488 mm")),
])
pad4 = doc.addObject("PartDesign::Pad", "Pad003")
body.addObject(pad4)
pad4.Profile = sketch6
pad4.Length = Q("0.1625 in")

# Sketch on XZ plane
sketch7 = doc.addObject("Sketcher::SketchObject", "Sketch006")
body.addObject(sketch7)
sketch7.AttachmentSupport = (doc.XZ_Plane, [""])
sketch7.MapMode = "FlatFace"
sketch7.AttachmentOffset = App.Placement(App.Vector(0, 0, 0.384 * 25.4), App.Rotation())
sketch7.addGeometry(Part.Circle(App.Vector(-83.1, -52.7, 0), App.Vector(0, 0, 1), 1.4), False)
sketch7.addConstraint([
    Sketcher.Constraint("Diameter", 0, Q("0.112 in")),
    Sketcher.Constraint("DistanceX", 0, 3, -1, 1, Q("83.120701 mm")),
    Sketcher.Constraint("DistanceY", 0, 3, -1, 1, Q("52.732488 mm")),
])
pad5 = doc.addObject("PartDesign::Pad", "Pad004")
body.addObject(pad5)
pad5.Profile = sketch7
pad5.Length = Q("0.13 in")

# Sketch on XZ plane
sketch8 = doc.addObject("Sketcher::SketchObject", "Sketch007")
body.addObject(sketch8)
sketch8.AttachmentSupport = (doc.XZ_Plane, [""])
sketch8.MapMode = "FlatFace"
sketch8.AttachmentOffset = App.Placement(App.Vector(0, 0, 14.0556), App.Rotation())
sketch8.addGeometry([
    Part.LineSegment(App.Vector(-82.82, -63.36, 0), App.Vector(-82.76, -63.66, 0)),  # 0
    Part.LineSegment(App.Vector(-82.76, -63.66, 0), App.Vector(-82.11, -64.93, 0)),  # 1
    Part.LineSegment(App.Vector(-82.11, -64.93, 0), App.Vector(-82.06, -65.69, 0)),  # 2
    Part.LineSegment(App.Vector(-82.06, -65.69, 0), App.Vector(-84.2, -65.69, 0)),  # 3
    Part.LineSegment(App.Vector(-84.2, -65.69, 0), App.Vector(-84.14, -64.93, 0)),  # 4
    Part.LineSegment(App.Vector(-84.14, -64.93, 0), App.Vector(-83.49, -63.66, 0)),  # 5
    Part.LineSegment(App.Vector(-83.49, -63.66, 0), App.Vector(-83.43, -63.36, 0)),  # 6
    Part.LineSegment(App.Vector(-83.43, -63.36, 0), App.Vector(-82.82, -63.36, 0)),  # 7
], False)
sketch8.addConstraint([
    Sketcher.Constraint("Coincident", 0, 2, 1, 1),
    Sketcher.Constraint("Coincident", 1, 2, 2, 1),
    Sketcher.Constraint("Coincident", 2, 2, 3, 1),
    Sketcher.Constraint("Coincident", 3, 2, 4, 1),
    Sketcher.Constraint("Coincident", 4, 2, 5, 1),
    Sketcher.Constraint("Coincident", 5, 2, 6, 1),
    Sketcher.Constraint("Coincident", 6, 2, 7, 1),
    Sketcher.Constraint("Coincident", 7, 2, 0, 1),
    Sketcher.Constraint("Horizontal", 3),
    Sketcher.Constraint("Horizontal", 7),
    Sketcher.Constraint("DistanceX", 7, 1, 7, 2, Q("0.024 in")),
    Sketcher.Constraint("Angle", 5, Q("62.69 deg")),
    Sketcher.Constraint("Angle", 6, Q("78.69 deg")),
    Sketcher.Constraint("Distance", 6, Q("0.012 in")),
    Sketcher.Constraint("Distance", 0, Q("0.3057 mm")),
    Sketcher.Constraint("DistanceX", 6, 2, -1, 1, Q("83.425501 mm")),
    Sketcher.Constraint("DistanceX", 0, 2, 1, 2, Q("0.647502 mm")),
    Sketcher.Constraint("DistanceY", 3, 2, 4, 2, Q("0.763401 mm")),
    Sketcher.Constraint("DistanceX", 3, 2, 3, 1, Q("2.143576 mm")),
    Sketcher.Constraint("DistanceX", 0, 2, -1, 1, Q("82.75737 mm")),
    Sketcher.Constraint("DistanceY", 0, 2, -1, 1, Q("63.660439 mm")),
    Sketcher.Constraint("DistanceX", 3, 2, -1, 1, Q("84.203411 mm")),
    Sketcher.Constraint("DistanceY", 2, 2, 1, 2, Q("0.762828 mm")),
    Sketcher.Constraint("DistanceX", 4, 2, 2, 2, Q("2.080851 mm")),
])
pocket3 = doc.addObject("PartDesign::Pocket", "Pocket002")
body.addObject(pocket3)
pocket3.Profile = sketch8
pocket3.Length = 20.8341
doc.recompute()

datumline = doc.addObject("PartDesign::Line", "DatumLine")
body.addObject(datumline)
datumline.Placement = App.Placement(App.Vector(-83.120701, 0, -52.732488), App.Rotation(App.Vector(0, 0, 1), App.Vector(0, 1, 0)))
polarpattern = doc.addObject("PartDesign::PolarPattern", "PolarPattern")
body.addObject(polarpattern)
polarpattern.Originals = [pocket3]
polarpattern.Axis = (datumline, [""])
polarpattern.Angle = 360
polarpattern.Occurrences = 29
body.Tip = polarpattern

doc.recompute()
